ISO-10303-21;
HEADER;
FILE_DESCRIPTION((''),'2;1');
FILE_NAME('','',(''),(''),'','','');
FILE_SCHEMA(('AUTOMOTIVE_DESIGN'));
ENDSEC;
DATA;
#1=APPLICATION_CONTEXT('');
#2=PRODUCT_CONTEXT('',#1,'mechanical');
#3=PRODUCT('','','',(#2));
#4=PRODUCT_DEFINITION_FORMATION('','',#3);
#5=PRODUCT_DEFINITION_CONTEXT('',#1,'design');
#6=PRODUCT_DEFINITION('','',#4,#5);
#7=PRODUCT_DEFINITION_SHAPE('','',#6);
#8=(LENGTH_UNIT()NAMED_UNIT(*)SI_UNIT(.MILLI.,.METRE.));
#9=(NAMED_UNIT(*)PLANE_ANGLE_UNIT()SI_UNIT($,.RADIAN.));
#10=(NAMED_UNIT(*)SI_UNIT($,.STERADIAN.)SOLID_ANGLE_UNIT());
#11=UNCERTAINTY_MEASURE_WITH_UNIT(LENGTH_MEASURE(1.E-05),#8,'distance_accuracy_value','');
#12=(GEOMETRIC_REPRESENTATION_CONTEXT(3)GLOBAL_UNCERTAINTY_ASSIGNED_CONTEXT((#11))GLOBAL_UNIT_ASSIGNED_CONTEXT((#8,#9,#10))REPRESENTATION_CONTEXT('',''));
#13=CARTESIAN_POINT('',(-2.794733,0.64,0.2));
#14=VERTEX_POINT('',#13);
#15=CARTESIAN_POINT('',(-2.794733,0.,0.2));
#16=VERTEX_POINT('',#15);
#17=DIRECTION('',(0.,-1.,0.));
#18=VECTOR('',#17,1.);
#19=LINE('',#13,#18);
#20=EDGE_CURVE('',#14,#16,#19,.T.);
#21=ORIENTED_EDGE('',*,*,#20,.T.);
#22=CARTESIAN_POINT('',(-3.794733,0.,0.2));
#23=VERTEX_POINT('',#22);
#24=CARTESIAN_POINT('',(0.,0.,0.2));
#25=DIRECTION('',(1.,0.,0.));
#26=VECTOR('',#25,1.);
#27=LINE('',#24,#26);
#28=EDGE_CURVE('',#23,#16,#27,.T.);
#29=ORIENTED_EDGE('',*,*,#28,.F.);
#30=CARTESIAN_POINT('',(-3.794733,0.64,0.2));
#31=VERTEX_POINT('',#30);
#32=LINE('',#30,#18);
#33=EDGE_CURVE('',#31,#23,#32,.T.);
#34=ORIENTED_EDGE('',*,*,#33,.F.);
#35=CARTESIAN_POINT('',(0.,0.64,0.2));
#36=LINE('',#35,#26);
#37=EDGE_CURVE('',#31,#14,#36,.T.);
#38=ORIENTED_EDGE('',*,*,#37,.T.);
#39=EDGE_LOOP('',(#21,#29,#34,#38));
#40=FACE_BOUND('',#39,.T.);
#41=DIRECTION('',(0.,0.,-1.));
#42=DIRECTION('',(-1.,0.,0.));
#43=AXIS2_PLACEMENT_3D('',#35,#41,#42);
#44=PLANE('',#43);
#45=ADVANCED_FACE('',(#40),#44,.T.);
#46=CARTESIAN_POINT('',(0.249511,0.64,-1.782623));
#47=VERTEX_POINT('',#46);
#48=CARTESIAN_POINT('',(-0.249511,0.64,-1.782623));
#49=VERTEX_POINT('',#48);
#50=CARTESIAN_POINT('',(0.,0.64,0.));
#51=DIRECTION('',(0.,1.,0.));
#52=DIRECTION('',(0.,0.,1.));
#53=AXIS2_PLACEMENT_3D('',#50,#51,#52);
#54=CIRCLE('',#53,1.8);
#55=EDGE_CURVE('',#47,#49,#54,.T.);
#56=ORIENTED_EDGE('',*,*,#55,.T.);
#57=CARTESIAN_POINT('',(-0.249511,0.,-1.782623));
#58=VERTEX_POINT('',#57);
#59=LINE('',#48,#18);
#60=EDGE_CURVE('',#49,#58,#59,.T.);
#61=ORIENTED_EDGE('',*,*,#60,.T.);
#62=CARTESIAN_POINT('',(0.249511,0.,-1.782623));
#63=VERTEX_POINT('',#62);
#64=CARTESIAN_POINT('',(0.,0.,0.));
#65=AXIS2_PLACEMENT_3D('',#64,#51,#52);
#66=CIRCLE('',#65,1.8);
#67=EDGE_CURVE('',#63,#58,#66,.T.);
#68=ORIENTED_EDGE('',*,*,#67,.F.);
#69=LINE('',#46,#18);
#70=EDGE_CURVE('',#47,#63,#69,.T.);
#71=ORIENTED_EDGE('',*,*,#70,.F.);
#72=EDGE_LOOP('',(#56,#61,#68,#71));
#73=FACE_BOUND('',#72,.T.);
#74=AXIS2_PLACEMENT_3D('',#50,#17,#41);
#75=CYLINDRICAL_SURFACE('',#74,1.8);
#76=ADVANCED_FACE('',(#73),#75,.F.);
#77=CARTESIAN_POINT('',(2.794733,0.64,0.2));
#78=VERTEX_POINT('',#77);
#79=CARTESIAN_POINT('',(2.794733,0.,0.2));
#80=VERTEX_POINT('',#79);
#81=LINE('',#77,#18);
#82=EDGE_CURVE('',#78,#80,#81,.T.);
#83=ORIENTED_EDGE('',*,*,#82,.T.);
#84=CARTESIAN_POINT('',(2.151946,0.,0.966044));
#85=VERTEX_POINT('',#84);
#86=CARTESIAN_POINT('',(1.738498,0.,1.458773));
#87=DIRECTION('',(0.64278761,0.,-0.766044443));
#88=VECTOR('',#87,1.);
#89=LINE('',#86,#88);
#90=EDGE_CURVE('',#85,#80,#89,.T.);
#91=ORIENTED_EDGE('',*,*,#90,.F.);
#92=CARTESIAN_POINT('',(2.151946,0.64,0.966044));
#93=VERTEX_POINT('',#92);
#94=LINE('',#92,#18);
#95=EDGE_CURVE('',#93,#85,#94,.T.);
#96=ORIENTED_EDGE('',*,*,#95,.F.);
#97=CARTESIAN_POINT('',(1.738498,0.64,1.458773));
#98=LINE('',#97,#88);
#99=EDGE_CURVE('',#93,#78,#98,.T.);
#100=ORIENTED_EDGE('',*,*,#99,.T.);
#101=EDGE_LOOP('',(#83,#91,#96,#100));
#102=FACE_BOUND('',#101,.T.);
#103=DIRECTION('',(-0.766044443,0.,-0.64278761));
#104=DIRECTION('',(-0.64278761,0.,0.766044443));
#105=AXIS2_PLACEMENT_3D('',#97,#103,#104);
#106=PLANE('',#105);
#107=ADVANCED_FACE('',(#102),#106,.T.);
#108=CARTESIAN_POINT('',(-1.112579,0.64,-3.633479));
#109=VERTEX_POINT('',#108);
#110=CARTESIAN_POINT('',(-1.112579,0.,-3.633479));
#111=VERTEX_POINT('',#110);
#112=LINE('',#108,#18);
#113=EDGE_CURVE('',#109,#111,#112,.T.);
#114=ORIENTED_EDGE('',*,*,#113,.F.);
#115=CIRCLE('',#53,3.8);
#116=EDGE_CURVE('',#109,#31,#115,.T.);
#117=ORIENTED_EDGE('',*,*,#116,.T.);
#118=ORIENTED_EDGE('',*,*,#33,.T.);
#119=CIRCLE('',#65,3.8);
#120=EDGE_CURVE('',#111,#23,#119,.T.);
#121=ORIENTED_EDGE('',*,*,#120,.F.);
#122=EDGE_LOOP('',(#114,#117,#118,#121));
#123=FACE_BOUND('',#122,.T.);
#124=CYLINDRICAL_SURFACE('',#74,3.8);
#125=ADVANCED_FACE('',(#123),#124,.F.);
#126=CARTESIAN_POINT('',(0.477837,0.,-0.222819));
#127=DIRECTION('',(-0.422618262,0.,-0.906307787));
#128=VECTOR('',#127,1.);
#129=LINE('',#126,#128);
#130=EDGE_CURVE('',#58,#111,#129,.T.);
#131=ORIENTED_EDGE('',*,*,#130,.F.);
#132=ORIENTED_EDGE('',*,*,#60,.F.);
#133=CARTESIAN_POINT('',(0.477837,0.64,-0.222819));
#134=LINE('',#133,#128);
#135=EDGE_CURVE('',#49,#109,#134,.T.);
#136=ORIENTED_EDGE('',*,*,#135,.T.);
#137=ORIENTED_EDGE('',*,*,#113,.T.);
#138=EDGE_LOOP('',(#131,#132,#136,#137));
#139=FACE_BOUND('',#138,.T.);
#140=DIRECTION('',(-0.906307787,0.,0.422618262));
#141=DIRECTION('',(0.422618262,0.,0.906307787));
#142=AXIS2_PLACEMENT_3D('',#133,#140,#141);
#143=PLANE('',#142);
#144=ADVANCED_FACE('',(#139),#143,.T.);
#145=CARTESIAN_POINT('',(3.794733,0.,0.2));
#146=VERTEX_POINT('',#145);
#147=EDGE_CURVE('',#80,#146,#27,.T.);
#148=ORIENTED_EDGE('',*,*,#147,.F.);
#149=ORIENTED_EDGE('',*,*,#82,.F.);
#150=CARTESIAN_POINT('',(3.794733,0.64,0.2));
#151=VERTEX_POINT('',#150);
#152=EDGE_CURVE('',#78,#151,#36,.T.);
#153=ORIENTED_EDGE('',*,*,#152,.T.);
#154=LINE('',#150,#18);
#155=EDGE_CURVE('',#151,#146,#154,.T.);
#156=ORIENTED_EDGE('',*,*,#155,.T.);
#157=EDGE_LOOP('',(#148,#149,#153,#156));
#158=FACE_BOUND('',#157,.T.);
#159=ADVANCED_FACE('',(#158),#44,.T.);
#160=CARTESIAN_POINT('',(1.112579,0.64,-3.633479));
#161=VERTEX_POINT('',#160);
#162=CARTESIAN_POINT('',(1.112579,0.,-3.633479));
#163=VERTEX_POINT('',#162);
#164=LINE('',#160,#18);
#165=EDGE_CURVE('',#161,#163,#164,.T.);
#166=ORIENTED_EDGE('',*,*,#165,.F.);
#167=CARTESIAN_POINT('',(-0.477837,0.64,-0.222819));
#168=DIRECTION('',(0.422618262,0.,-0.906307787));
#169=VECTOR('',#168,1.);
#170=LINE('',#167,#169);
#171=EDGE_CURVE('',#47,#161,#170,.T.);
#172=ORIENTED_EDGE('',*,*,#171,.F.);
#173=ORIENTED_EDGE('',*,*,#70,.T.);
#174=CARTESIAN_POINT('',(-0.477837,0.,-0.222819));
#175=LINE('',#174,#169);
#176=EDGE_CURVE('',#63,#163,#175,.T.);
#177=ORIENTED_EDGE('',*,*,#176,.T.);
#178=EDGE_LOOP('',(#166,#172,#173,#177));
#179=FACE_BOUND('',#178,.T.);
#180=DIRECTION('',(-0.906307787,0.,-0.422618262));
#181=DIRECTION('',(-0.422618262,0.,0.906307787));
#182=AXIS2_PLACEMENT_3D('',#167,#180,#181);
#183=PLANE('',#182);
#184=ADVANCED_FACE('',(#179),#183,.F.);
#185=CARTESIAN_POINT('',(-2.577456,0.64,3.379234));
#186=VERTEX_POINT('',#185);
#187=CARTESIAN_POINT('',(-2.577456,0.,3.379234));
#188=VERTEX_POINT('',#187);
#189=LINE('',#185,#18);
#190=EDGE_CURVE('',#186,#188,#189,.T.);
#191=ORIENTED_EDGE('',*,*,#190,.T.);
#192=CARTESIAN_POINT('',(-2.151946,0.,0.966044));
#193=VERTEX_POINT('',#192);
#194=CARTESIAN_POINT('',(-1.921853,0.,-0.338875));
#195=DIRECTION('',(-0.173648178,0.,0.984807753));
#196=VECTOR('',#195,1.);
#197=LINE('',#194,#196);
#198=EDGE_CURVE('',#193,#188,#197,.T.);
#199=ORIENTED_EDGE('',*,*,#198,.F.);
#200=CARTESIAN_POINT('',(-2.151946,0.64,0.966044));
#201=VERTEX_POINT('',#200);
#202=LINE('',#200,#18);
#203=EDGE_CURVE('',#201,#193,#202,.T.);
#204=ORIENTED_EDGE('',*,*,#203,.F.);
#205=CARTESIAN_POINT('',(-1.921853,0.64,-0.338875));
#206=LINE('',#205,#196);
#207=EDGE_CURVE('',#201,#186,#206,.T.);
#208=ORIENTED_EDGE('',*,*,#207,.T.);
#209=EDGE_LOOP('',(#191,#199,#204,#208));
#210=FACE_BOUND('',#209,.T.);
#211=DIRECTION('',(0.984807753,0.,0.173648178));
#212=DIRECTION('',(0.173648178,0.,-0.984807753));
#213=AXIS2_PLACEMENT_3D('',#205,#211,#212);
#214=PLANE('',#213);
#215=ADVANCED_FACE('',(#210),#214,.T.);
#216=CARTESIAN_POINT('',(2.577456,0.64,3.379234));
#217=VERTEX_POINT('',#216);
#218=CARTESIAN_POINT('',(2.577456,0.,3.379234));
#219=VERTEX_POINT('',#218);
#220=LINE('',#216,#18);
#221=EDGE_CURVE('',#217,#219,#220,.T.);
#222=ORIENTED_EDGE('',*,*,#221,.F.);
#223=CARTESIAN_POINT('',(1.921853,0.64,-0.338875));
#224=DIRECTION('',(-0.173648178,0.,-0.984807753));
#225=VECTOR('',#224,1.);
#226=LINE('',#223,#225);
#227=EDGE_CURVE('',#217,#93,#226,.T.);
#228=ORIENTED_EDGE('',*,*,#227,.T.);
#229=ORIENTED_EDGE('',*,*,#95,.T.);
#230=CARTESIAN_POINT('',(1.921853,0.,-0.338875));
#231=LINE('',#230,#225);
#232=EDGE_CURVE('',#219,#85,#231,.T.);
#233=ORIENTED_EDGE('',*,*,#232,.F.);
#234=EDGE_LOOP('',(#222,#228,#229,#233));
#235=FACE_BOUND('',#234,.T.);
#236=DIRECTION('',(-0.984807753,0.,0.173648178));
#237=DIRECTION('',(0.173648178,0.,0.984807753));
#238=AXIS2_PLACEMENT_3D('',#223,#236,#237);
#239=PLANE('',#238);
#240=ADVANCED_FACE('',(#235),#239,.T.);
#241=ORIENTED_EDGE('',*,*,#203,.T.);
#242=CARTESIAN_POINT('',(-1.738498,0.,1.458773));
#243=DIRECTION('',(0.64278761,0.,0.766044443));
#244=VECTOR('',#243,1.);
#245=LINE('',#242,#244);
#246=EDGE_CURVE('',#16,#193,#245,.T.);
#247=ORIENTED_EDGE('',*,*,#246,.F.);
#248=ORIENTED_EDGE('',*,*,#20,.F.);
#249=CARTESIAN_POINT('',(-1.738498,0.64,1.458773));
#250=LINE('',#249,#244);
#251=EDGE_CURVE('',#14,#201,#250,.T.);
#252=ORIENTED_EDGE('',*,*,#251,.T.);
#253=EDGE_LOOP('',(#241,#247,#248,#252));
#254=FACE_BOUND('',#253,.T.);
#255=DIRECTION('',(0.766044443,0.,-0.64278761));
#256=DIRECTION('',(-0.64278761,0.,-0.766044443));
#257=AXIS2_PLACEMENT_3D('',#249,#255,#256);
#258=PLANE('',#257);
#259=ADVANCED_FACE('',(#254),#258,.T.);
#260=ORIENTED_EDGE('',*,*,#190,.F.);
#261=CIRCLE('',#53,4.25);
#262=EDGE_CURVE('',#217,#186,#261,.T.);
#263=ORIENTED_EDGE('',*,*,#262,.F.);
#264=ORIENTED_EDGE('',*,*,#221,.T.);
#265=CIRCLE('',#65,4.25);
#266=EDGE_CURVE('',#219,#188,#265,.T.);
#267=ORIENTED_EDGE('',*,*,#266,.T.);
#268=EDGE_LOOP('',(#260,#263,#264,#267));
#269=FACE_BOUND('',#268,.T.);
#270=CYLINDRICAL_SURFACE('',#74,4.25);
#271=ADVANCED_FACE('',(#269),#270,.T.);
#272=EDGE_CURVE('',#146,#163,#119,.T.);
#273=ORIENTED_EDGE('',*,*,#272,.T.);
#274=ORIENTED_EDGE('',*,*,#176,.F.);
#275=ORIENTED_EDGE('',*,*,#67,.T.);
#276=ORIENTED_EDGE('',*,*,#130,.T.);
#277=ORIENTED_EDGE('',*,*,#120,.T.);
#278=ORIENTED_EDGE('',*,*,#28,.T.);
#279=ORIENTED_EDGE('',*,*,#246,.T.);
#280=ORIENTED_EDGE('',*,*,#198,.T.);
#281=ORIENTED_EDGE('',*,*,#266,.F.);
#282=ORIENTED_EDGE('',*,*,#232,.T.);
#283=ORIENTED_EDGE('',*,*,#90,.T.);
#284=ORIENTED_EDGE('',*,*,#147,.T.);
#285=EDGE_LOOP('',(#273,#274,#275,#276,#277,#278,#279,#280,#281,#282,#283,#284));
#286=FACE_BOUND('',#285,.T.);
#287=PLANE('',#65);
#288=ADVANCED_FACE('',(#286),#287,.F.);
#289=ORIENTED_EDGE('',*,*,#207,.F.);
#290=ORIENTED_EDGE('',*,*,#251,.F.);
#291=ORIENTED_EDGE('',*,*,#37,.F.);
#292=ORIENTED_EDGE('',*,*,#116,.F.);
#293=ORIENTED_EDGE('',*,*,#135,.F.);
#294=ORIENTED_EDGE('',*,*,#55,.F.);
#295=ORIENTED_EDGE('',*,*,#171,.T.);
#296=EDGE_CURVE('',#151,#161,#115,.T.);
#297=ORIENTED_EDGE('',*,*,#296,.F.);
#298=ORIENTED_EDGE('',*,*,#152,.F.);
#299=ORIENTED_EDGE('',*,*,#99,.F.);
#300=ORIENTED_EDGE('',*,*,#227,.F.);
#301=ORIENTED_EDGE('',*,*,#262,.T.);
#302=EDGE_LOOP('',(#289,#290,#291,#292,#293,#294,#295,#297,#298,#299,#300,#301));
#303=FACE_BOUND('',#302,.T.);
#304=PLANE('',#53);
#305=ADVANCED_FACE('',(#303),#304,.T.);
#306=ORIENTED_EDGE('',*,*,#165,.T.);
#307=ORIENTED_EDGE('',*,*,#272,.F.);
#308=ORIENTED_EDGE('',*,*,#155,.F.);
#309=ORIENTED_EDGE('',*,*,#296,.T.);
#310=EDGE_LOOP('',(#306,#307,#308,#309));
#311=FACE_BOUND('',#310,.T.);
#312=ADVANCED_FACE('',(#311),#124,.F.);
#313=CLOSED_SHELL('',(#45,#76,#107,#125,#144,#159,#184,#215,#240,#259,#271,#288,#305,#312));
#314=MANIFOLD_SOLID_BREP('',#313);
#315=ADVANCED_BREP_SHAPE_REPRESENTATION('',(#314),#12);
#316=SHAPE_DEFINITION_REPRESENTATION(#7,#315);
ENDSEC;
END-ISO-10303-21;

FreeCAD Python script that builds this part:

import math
import FreeCAD as App
import Part
import Sketcher
from FreeCAD import Vector
Q = App.Units.Quantity

doc = App.newDocument("Part")
body = doc.addObject("PartDesign::Body", "Body")

# Sketch on XZ plane
sketch1 = body.newObject("Sketcher::SketchObject", "Sketch")
sketch1.AttachmentSupport = (doc.getObject("XZ_Plane"), [""])
sketch1.MapMode = "FlatFace"
sketch1.addGeometry(Part.LineSegment(Vector(-1.112579, -3.633479, 0), Vector(-0.249511, -1.782623, 0)), False)
sketch1.addGeometry(Part.ArcOfCircle(Part.Circle(Vector(0, 0, 0), Vector(0, 0, 1), 1.8), math.radians(-97.967847), math.radians(-82.032153)), False)
sketch1.addGeometry(Part.LineSegment(Vector(0.249511, -1.782623, 0), Vector(1.112579, -3.633479, 0)), False)
sketch1.addGeometry(Part.ArcOfCircle(Part.Circle(Vector(0, 0, 0), Vector(0, 0, 1), 3.8), math.radians(-72.975292), math.radians(-13.219296)), False)
sketch1.addGeometry(Part.ArcOfCircle(Part.Circle(Vector(0, 0, 0), Vector(0, 0, 1), 3.8), math.radians(-13.219296), math.radians(3.016961)), False)
sketch1.addGeometry(Part.LineSegment(Vector(3.794733, 0.2, 0), Vector(2.794733, 0.2, 0)), False)
sketch1.addGeometry(Part.LineSegment(Vector(2.794733, 0.2, 0), Vector(2.151946, 0.966044, 0)), False)
sketch1.addGeometry(Part.LineSegment(Vector(2.151946, 0.966044, 0), Vector(2.575947, 3.370676, 0)), False)
sketch1.addGeometry(Part.LineSegment(Vector(2.575947, 3.370676, 0), Vector(2.577456, 3.379234, 0)), False)
sketch1.addGeometry(Part.ArcOfCircle(Part.Circle(Vector(0, 0, 0), Vector(0, 0, 1), 4.25), math.radians(127.333992), math.radians(412.666008)), False)
sketch1.addGeometry(Part.LineSegment(Vector(-2.577456, 3.379234, 0), Vector(-2.576768, 3.375333, 0)), False)
sketch1.addGeometry(Part.LineSegment(Vector(-2.576768, 3.375333, 0), Vector(-2.151946, 0.966044, 0)), False)
sketch1.addGeometry(Part.LineSegment(Vector(-2.151946, 0.966044, 0), Vector(-2.794733, 0.2, 0)), False)
sketch1.addGeometry(Part.LineSegment(Vector(-2.794733, 0.2, 0), Vector(-3.794733, 0.2, 0)), False)
sketch1.addGeometry(Part.ArcOfCircle(Part.Circle(Vector(0, 0, 0), Vector(0, 0, 1), 3.8), math.radians(176.983039), math.radians(193.219296)), False)
sketch1.addGeometry(Part.ArcOfCircle(Part.Circle(Vector(0, 0, 0), Vector(0, 0, 1), 3.8), math.radians(-166.780704), math.radians(-107.024708)), False)
sketch1.addConstraint(Sketcher.Constraint("Coincident", 0, 2, 1, 1))
sketch1.addConstraint(Sketcher.Constraint("Coincident", 1, 2, 2, 1))
sketch1.addConstraint(Sketcher.Constraint("Coincident", 2, 2, 3, 1))
sketch1.addConstraint(Sketcher.Constraint("Tangent", 3, 2, 4, 1))
sketch1.addConstraint(Sketcher.Constraint("Coincident", 4, 2, 5, 1))
sketch1.addConstraint(Sketcher.Constraint("Coincident", 5, 2, 6, 1))
sketch1.addConstraint(Sketcher.Constraint("Coincident", 6, 2, 7, 1))
sketch1.addConstraint(Sketcher.Constraint("Coincident", 7, 2, 8, 1))
sketch1.addConstraint(Sketcher.Constraint("Coincident", 8, 2, 9, 2))
sketch1.addConstraint(Sketcher.Constraint("Coincident", 9, 1, 10, 1))
sketch1.addConstraint(Sketcher.Constraint("Coincident", 10, 2, 11, 1))
sketch1.addConstraint(Sketcher.Constraint("Coincident", 11, 2, 12, 1))
sketch1.addConstraint(Sketcher.Constraint("Coincident", 12, 2, 13, 1))
sketch1.addConstraint(Sketcher.Constraint("Coincident", 13, 2, 14, 1))
sketch1.addConstraint(Sketcher.Constraint("Tangent", 14, 2, 15, 1))
sketch1.addConstraint(Sketcher.Constraint("Coincident", 15, 2, 0, 1))
sketch1.addConstraint(Sketcher.Constraint("Horizontal", 5))
sketch1.addConstraint(Sketcher.Constraint("Horizontal", 13))
sketch1.addConstraint(Sketcher.Constraint("Coincident", 1, 3, -1, 1))
sketch1.addConstraint(Sketcher.Constraint("Coincident", 3, 3, -1, 1))
sketch1.addConstraint(Sketcher.Constraint("Coincident", 9, 3, -1, 1))
sketch1.addConstraint(Sketcher.Constraint("Coincident", 14, 3, -1, 1))
sketch1.addConstraint(Sketcher.Constraint("Equal", 3, 4))
sketch1.addConstraint(Sketcher.Constraint("Equal", 4, 14))
sketch1.addConstraint(Sketcher.Constraint("Equal", 14, 15))
sketch1.addConstraint(Sketcher.Constraint("Symmetric", 6, 2, 11, 2, -2))
sketch1.addConstraint(Sketcher.Constraint("Symmetric", 5, 2, 12, 2, -2))
sketch1.addConstraint(Sketcher.Constraint("Parallel", 7, 8))
sketch1.addConstraint(Sketcher.Constraint("Parallel", 10, 11))
sketch1.addConstraint(Sketcher.Constraint("Horizontal", 0, 2, 1, 2))
sketch1.addConstraint(Sketcher.Constraint("Horizontal", 8, 2, 9, 1))
sketch1.addConstraint(Sketcher.Constraint("Horizontal", 3, 2, 14, 2))
sketch1.addConstraint(Sketcher.Constraint("Horizontal", 2, 2, 15, 2))
sketch1.addConstraint(Sketcher.Constraint("Radius", 1, 1.8))
sketch1.addConstraint(Sketcher.Constraint("Radius", 3, 3.8))
sketch1.addConstraint(Sketcher.Constraint("DistanceX", 5, 2, 5, 1, 1.0))
sketch1.addConstraint(Sketcher.Constraint("Angle", 0, Q("65 deg")))
sketch1.addConstraint(Sketcher.Constraint("Angle", 6, Q("130 deg")))
sketch1.addConstraint(Sketcher.Constraint("Angle", 7, Q("80 deg")))
sketch1.addConstraint(Sketcher.Constraint("Radius", 9, 4.25))
sketch1.addConstraint(Sketcher.Constraint("Distance", 6, 1.0))
sketch1.addConstraint(Sketcher.Constraint("DistanceY", -1, 1, 4, 2, 0.2))
sketch1.addConstraint(Sketcher.Constraint("DistanceX", 6, 2, 7, 2, 0.424001))
sketch1.addConstraint(Sketcher.Constraint("DistanceY", 2, 2, 3, 2, 2.764499))
sketch1.addConstraint(Sketcher.Constraint("DistanceY", 10, 2, 9, 1, 0.003901))
sketch1.addConstraint(Sketcher.Constraint("DistanceX", 0, 2, -1, 1, 0.249511))
pad1 = body.newObject("PartDesign::Pad", "Pad")
pad1.Profile = sketch1
pad1.Length = 0.64
pad1.Reversed = True

doc.recompute()
